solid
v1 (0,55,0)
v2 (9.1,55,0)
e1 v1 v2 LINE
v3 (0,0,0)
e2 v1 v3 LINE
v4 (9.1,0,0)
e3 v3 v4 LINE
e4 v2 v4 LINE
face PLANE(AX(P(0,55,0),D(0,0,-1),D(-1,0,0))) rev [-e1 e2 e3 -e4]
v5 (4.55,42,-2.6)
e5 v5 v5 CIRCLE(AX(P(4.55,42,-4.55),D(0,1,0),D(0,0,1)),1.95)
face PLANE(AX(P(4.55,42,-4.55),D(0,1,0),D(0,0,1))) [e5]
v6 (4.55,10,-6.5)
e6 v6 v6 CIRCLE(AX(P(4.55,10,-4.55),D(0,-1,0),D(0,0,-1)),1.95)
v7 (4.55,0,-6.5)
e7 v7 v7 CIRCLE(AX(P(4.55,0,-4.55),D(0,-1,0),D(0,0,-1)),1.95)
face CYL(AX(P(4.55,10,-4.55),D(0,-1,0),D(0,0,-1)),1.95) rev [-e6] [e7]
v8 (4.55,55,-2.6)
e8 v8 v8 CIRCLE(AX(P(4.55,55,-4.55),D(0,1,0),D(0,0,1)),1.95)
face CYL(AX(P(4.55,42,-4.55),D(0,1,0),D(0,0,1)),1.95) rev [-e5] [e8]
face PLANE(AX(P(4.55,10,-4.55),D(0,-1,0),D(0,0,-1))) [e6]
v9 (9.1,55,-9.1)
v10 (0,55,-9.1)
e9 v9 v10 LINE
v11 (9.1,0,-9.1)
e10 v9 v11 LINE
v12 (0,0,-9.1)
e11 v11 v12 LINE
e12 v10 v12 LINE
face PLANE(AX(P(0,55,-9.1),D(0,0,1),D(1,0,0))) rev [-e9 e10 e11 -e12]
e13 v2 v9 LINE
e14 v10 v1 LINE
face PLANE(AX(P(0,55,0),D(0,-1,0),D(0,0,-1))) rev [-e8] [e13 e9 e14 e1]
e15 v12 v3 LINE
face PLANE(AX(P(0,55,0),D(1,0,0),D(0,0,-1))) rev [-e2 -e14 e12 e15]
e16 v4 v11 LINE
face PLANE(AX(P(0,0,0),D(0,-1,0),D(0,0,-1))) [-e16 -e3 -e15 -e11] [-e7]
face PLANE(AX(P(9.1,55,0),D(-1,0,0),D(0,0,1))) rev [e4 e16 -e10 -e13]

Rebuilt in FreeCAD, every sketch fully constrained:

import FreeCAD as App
import Part
import Sketcher

doc = App.newDocument("Part")
body = doc.addObject("PartDesign::Body", "Body")

# Sketch on XZ plane
sketch1 = body.newObject("Sketcher::SketchObject", "Sketch")
sketch1.AttachmentSupport = (doc.getObject("XZ_Plane"), [""])
sketch1.MapMode = "FlatFace"
sketch1.addGeometry([
    Part.LineSegment(App.Vector(0, -9.1, 0), App.Vector(0, 0, 0)),
    Part.LineSegment(App.Vector(0, 0, 0), App.Vector(9.1, 0, 0)),
    Part.LineSegment(App.Vector(9.1, 0, 0), App.Vector(9.1, -9.1, 0)),
    Part.LineSegment(App.Vector(9.1, -9.1, 0), App.Vector(0, -9.1, 0)),
], False)
sketch1.addConstraint([
    Sketcher.Constraint("Coincident", 0, 2, 1, 1),
    Sketcher.Constraint("Coincident", 1, 2, 2, 1),
    Sketcher.Constraint("Coincident", 2, 2, 3, 1),
    Sketcher.Constraint("Coincident", 3, 2, 0, 1),
    Sketcher.Constraint("Vertical", 0),
    Sketcher.Constraint("Horizontal", 1),
    Sketcher.Constraint("Vertical", 2),
    Sketcher.Constraint("Horizontal", 3),
    Sketcher.Constraint("Coincident", 0, 2, -1, 1),
    Sketcher.Constraint("Equal", 3, 0),
    Sketcher.Constraint("DistanceX", 1, 1, 1, 2, 9.1),
])
pad1 = body.newObject("PartDesign::Pad", "Pad")
pad1.Profile = sketch1
pad1.Length = 55
pad1.Reversed = True

# Sketch on XZ plane
sketch2 = body.newObject("Sketcher::SketchObject", "Sketch001")
sketch2.AttachmentSupport = (doc.getObject("XZ_Plane"), [""])
sketch2.MapMode = "FlatFace"
sketch2.AttachmentOffset = App.Placement(App.Vector(0, 0, -55), App.Rotation())
sketch2.addGeometry(Part.Circle(App.Vector(4.55, -4.55, 0), App.Vector(0, 0, 1), 1.95), False)
sketch2.addConstraint([
    Sketcher.Constraint("Diameter", 0, 3.9),
    Sketcher.Constraint("DistanceX", -1, 1, 0, 3, 4.55),
    Sketcher.Constraint("DistanceY", 0, 3, -1, 1, 4.55),
])
pocket1 = body.newObject("PartDesign::Pocket", "Pocket")
pocket1.Profile = sketch2
pocket1.Length = 13
pocket1.Reversed = True

# Sketch on XZ plane
sketch3 = body.newObject("Sketcher::SketchObject", "Sketch002")
sketch3.AttachmentSupport = (doc.getObject("XZ_Plane"), [""])
sketch3.MapMode = "FlatFace"
sketch3.addGeometry(Part.Circle(App.Vector(4.55, -4.55, 0), App.Vector(0, 0, 1), 1.95), False)
sketch3.addConstraint([
    Sketcher.Constraint("Diameter", 0, 3.9),
    Sketcher.Constraint("DistanceX", -1, 1, 0, 3, 4.55),
    Sketcher.Constraint("DistanceY", 0, 3, -1, 1, 4.55),
])
pocket2 = body.newObject("PartDesign::Pocket", "Pocket001")
pocket2.Profile = sketch3
pocket2.Length = 10

doc.recompute()
